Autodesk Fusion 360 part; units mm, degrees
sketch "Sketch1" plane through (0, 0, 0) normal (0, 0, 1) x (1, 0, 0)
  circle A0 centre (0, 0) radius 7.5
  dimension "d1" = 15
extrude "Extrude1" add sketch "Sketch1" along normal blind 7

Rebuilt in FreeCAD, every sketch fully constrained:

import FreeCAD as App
import Part
import Sketcher
from FreeCAD import Vector
Q = App.Units.Quantity

doc = App.newDocument("Part")
body = doc.addObject("PartDesign::Body", "Body")

sketch1 = doc.addObject("Sketcher::SketchObject", "Sketch")
body.addObject(sketch1)
sketch1.AttachmentSupport = (doc.XY_Plane, [""])
sketch1.MapMode = "FlatFace"
sketch1.addGeometry(Part.Circle(Vector(0, 0, 0), Vector(0, 0, 1), 8), False)
sketch1.addConstraint(Sketcher.Constraint("Coincident", 0, 3, -1, 1))
sketch1.addConstraint(Sketcher.Constraint("Diameter", 0, Q("15 mm")))
pad1 = doc.addObject("PartDesign::Pad", "Pad")
body.addObject(pad1)
pad1.Profile = sketch1
pad1.Length = 7

doc.recompute()
